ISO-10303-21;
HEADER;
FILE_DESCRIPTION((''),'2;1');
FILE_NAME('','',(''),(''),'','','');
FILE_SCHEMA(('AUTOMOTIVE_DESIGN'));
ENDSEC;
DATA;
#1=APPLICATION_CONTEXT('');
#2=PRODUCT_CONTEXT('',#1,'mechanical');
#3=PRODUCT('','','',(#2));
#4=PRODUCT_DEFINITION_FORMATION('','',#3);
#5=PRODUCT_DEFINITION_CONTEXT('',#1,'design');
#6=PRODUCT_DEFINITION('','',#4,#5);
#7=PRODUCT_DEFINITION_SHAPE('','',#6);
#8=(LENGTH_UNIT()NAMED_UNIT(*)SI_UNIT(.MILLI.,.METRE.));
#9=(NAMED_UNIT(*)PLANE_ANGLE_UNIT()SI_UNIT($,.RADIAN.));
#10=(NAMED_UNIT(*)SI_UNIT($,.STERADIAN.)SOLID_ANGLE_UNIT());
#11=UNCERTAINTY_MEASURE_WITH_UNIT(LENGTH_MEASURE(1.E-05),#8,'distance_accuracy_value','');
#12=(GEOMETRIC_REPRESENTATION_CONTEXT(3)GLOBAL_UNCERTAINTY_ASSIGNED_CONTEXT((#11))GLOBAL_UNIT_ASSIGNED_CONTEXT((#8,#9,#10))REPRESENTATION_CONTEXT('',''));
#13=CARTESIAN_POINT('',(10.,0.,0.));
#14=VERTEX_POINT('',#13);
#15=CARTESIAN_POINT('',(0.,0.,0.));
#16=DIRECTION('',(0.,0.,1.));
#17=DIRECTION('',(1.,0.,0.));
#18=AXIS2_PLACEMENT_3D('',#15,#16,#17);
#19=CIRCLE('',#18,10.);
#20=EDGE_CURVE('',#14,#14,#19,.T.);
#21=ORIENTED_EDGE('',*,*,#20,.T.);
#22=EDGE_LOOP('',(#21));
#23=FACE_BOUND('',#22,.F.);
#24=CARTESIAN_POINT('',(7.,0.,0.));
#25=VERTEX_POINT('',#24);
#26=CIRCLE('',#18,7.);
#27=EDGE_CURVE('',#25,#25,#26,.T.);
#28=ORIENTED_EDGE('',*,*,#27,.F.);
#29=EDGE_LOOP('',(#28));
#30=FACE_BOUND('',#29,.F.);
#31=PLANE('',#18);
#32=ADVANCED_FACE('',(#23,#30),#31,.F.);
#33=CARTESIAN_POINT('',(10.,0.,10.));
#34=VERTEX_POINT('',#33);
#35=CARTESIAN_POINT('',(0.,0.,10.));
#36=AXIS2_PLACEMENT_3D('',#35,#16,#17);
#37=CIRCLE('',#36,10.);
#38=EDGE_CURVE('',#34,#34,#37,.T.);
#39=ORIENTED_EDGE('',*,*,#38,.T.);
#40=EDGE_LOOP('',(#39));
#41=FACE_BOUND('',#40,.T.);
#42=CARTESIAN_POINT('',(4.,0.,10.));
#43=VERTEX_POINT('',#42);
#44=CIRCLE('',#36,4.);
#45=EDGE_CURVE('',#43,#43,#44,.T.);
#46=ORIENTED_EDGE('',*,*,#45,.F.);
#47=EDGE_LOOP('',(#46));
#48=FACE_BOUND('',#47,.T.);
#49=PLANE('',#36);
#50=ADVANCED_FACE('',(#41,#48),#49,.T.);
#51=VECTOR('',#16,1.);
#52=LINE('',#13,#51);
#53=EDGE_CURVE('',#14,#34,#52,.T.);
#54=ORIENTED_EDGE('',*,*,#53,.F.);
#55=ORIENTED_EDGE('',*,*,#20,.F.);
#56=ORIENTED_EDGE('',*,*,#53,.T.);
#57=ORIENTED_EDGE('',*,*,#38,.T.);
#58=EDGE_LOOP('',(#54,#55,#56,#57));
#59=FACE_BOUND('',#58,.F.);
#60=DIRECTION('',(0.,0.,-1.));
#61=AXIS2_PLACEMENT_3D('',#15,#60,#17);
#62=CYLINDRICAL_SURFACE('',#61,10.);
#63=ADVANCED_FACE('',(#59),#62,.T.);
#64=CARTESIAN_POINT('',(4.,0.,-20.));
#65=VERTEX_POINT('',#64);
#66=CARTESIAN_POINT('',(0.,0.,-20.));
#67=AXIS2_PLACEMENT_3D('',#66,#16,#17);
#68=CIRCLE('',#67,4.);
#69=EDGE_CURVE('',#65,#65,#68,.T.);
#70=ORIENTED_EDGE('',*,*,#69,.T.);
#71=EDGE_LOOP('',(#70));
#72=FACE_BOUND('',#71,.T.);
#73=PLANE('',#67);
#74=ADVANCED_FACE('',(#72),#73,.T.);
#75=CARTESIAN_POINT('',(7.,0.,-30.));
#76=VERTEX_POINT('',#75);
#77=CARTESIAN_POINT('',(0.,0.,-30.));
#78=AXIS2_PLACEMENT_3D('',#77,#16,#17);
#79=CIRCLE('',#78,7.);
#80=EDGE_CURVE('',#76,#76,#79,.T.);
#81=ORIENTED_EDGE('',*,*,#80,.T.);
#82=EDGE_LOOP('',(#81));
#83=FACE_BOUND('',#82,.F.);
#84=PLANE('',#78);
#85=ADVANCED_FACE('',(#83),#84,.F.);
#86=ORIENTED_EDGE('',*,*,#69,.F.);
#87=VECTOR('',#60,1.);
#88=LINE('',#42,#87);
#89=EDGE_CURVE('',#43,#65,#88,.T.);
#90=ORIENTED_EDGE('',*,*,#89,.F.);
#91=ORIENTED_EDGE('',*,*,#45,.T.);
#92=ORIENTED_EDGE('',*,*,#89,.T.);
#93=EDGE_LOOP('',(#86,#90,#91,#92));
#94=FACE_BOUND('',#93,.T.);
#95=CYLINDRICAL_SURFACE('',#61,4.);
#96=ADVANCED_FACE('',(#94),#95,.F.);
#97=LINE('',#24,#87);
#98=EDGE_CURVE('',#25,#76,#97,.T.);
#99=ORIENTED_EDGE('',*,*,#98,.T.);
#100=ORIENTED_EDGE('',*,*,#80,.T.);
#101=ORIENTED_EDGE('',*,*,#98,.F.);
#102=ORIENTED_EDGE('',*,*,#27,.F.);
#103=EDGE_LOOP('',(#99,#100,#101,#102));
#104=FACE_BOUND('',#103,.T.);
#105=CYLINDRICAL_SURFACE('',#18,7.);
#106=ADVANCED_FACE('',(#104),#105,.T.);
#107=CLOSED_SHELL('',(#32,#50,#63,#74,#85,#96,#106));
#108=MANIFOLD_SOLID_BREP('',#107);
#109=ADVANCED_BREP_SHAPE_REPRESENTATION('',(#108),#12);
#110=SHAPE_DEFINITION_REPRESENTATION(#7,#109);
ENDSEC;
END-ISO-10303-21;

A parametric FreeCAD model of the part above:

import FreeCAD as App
import Part
import Sketcher
Q = App.Units.Quantity

doc = App.newDocument("Part")
params = doc.addObject("Spreadsheet::Sheet", "Params")
for row, (alias, value) in enumerate([
    ("sketch1_diameter", "14 mm"),
    ("pad1_length", "30 mm"),
    ("sketch2_diameter", "8 mm"),
    ("pocket1_length", "20 mm"),
    ("sketch3_diameter", "20 mm"),
    ("sketch3_diameter2", "8 mm"),
    ("pad2_length", "10 mm"),
], start=1):
    params.set(f"A{row}", alias)
    params.set(f"B{row}", "=" + value)
    params.setAlias(f"B{row}", alias)

body = doc.addObject("PartDesign::Body", "Body")

sketch1 = body.newObject("Sketcher::SketchObject", "Sketch")
sketch1.AttachmentSupport = (doc.getObject("XY_Plane"), [""])
sketch1.MapMode = "FlatFace"
sketch1.addGeometry(Part.Circle(App.Vector(0, 0, 0), App.Vector(0, 0, 1), 7), False)
sketch1.addConstraint(Sketcher.Constraint("Coincident", 0, 3, -1, 1))
sketch1.addConstraint(Sketcher.Constraint("Diameter", 0, Q("14 mm")))
sketch1.setExpression("Constraints[1]", "Params.sketch1_diameter")
pad1 = body.newObject("PartDesign::Pad", "Pad")
pad1.Profile = sketch1
pad1.setExpression("Length", "Params.pad1_length")
pad1.Reversed = True

sketch2 = body.newObject("Sketcher::SketchObject", "Sketch001")
sketch2.AttachmentSupport = (doc.getObject("XY_Plane"), [""])
sketch2.MapMode = "FlatFace"
sketch2.addGeometry(Part.Circle(App.Vector(0, 0, 0), App.Vector(0, 0, 1), 4), False)
sketch2.addConstraint(Sketcher.Constraint("Coincident", 0, 3, -1, 1))
sketch2.addConstraint(Sketcher.Constraint("Diameter", 0, Q("8 mm")))
sketch2.setExpression("Constraints[1]", "Params.sketch2_diameter")
pocket1 = body.newObject("PartDesign::Pocket", "Pocket")
pocket1.Profile = sketch2
pocket1.setExpression("Length", "Params.pocket1_length")

sketch3 = body.newObject("Sketcher::SketchObject", "Sketch002")
sketch3.AttachmentSupport = (doc.getObject("XY_Plane"), [""])
sketch3.MapMode = "FlatFace"
sketch3.addGeometry(Part.Circle(App.Vector(0, 0, 0), App.Vector(0, 0, 1), 10), False)
sketch3.addGeometry(Part.Circle(App.Vector(0, 0, 0), App.Vector(0, 0, 1), 4), False)
sketch3.addConstraint(Sketcher.Constraint("Coincident", 0, 3, -1, 1))
sketch3.addConstraint(Sketcher.Constraint("Coincident", 1, 3, -1, 1))
sketch3.addConstraint(Sketcher.Constraint("Diameter", 0, Q("20 mm")))
sketch3.addConstraint(Sketcher.Constraint("Diameter", 1, Q("8 mm")))
sketch3.setExpression("Constraints[2]", "Params.sketch3_diameter")
sketch3.setExpression("Constraints[3]", "Params.sketch3_diameter2")
pad2 = body.newObject("PartDesign::Pad", "Pad001")
pad2.Profile = sketch3
pad2.setExpression("Length", "Params.pad2_length")

doc.recompute()
